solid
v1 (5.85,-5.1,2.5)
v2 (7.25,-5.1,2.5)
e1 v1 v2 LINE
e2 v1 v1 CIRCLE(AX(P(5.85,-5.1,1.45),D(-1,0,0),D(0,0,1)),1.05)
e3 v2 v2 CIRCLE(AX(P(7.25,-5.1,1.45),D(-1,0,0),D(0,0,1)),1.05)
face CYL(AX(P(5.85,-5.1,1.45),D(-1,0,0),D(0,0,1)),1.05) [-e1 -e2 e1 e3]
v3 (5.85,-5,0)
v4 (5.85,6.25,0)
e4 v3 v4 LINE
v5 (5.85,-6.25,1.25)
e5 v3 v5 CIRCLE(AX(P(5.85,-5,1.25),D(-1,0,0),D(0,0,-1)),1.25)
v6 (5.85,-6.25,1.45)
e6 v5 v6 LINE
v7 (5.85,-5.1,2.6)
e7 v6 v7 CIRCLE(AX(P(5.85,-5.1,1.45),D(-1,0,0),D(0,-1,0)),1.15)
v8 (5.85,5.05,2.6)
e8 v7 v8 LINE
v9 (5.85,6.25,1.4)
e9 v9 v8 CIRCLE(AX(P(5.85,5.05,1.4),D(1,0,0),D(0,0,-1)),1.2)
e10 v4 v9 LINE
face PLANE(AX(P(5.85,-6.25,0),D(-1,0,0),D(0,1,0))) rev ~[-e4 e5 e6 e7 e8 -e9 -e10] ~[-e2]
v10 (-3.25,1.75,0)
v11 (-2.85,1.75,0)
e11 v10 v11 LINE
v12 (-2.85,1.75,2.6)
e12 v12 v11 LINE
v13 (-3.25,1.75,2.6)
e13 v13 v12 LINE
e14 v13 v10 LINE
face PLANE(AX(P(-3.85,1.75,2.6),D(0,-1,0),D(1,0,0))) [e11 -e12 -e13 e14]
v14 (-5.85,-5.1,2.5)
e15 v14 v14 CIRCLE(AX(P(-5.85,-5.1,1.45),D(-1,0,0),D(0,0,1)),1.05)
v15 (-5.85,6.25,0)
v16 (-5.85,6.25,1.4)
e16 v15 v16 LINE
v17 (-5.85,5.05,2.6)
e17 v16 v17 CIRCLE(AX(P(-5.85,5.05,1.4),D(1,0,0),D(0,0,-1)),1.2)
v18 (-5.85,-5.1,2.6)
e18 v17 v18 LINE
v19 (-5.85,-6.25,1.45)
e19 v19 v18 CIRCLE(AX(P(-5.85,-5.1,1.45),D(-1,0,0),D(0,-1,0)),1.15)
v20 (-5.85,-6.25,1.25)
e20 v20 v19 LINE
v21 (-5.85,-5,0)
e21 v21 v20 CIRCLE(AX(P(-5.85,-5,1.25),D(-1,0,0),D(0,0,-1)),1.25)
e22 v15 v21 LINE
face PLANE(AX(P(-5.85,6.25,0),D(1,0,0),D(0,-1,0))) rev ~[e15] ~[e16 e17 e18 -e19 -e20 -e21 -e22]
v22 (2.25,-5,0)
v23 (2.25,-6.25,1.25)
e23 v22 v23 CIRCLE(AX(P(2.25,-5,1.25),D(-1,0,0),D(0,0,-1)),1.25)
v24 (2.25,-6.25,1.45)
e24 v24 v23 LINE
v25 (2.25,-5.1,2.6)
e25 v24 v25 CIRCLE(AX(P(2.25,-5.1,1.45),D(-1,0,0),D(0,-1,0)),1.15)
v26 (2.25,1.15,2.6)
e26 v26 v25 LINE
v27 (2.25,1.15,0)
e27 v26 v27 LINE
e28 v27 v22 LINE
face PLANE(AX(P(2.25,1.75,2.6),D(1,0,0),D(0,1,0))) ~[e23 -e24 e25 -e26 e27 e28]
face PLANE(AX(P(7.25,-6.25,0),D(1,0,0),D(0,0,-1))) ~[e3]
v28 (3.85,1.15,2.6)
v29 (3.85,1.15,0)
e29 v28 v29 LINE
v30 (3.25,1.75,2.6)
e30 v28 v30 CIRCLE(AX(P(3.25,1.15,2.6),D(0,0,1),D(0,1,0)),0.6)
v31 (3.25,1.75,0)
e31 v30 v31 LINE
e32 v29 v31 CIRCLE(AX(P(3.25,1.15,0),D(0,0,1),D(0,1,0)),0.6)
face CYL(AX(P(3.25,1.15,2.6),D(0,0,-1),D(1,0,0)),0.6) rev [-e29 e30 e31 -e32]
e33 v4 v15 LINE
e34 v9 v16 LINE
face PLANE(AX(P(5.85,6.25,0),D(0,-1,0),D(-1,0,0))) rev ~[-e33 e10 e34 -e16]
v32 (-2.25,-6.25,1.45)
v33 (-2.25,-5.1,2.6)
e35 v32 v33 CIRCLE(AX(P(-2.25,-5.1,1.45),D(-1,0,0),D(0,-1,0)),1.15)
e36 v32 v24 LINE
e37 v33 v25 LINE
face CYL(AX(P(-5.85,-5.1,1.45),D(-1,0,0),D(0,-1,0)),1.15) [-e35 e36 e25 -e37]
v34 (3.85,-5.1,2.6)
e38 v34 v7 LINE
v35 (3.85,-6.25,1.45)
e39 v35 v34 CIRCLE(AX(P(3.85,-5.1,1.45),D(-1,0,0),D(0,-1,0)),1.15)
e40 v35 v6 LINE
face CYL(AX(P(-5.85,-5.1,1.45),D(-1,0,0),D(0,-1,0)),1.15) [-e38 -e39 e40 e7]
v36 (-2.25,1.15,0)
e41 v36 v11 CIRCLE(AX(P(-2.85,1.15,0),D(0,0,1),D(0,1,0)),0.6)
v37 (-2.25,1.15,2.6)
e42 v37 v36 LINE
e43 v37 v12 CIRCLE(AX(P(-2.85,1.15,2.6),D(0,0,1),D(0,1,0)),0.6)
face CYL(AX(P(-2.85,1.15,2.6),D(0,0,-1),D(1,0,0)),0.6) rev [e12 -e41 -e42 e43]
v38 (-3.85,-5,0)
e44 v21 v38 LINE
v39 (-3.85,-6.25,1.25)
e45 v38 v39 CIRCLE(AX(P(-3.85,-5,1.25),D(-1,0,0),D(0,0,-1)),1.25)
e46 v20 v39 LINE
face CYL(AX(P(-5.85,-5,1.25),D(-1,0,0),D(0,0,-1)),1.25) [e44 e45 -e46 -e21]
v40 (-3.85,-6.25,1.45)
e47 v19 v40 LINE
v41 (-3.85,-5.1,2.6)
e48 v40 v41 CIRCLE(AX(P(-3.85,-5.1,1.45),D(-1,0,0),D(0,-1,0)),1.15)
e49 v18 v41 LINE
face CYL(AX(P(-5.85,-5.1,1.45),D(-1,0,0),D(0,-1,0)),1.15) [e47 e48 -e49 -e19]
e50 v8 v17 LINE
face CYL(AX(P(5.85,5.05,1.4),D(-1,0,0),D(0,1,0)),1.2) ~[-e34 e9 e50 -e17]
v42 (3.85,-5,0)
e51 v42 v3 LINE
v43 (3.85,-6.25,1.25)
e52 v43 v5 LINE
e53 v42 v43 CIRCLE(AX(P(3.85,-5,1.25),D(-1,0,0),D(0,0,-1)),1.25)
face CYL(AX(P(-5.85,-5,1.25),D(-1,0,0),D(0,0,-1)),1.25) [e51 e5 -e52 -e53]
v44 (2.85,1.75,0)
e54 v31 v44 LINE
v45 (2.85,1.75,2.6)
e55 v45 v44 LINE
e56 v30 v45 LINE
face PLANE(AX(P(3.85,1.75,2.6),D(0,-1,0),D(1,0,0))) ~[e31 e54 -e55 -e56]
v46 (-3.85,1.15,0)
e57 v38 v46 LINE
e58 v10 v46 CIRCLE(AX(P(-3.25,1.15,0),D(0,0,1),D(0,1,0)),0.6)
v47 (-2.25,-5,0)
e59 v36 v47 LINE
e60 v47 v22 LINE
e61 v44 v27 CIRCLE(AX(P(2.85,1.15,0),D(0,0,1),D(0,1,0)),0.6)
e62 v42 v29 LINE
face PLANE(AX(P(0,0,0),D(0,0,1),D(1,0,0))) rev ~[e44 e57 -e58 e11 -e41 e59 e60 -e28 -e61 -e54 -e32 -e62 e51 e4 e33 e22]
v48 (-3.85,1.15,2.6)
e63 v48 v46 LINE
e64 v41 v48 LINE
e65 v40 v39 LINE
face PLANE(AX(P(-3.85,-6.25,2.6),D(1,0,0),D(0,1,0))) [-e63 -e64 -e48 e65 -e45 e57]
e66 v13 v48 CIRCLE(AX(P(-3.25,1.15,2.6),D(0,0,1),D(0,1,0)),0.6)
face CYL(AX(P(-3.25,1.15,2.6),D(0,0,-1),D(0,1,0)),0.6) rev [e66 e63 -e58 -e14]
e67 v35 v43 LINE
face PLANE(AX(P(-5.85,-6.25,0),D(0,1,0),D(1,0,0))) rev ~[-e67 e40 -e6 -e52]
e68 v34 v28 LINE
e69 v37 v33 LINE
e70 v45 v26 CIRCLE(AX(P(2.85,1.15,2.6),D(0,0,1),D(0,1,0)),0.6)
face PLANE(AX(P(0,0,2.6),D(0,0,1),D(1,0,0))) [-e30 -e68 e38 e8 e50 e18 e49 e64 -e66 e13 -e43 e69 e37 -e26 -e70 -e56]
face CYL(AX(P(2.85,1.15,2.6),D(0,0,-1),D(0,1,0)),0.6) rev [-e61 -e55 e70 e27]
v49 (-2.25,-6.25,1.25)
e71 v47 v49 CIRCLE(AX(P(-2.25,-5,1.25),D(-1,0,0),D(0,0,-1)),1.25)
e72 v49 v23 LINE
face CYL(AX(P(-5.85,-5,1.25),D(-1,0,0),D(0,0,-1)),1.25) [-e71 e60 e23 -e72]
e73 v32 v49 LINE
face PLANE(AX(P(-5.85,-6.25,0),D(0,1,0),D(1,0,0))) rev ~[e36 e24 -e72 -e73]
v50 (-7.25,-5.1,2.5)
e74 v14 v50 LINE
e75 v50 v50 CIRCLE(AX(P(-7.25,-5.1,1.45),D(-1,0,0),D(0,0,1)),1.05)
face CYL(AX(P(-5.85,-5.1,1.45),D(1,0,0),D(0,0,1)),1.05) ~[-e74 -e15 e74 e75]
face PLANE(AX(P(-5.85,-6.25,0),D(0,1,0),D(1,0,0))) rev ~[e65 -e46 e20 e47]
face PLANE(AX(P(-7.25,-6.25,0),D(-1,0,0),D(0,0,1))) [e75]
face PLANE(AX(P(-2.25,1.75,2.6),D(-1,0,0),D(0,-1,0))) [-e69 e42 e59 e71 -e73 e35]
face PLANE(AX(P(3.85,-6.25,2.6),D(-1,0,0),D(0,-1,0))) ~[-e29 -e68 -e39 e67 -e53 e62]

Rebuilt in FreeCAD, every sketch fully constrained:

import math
import FreeCAD as App
import Part
import Sketcher

V = App.Vector


def edges_at(feature, points):
    """Names of the edges that pass closest to the given points."""
    edges = feature.Shape.Edges
    near = lambda p: min(range(len(edges)), key=lambda i: edges[i].distToShape(Part.Vertex(*p))[0])
    return sorted({f"Edge{near(p) + 1}" for p in points})

doc = App.newDocument("Part")
body = doc.addObject("PartDesign::Body", "Body")

# Sketch on XY plane
sketch1 = doc.addObject("Sketcher::SketchObject", "Sketch")
body.addObject(sketch1)
sketch1.AttachmentSupport = (doc.XY_Plane, [""])
sketch1.MapMode = "FlatFace"
sketch1.addGeometry(Part.LineSegment(V(-6, 6, 0), V(-6, -6, 0)), False)
sketch1.addGeometry(Part.LineSegment(V(-6, -6, 0), V(6, -6, 0)), False)
sketch1.addGeometry(Part.LineSegment(V(6, -6, 0), V(6, 6, 0)), False)
sketch1.addGeometry(Part.LineSegment(V(6, 6, 0), V(-6, 6, 0)), False)
sketch1.addConstraint(Sketcher.Constraint("Coincident", 0, 2, 1, 1))
sketch1.addConstraint(Sketcher.Constraint("Coincident", 1, 2, 2, 1))
sketch1.addConstraint(Sketcher.Constraint("Coincident", 2, 2, 3, 1))
sketch1.addConstraint(Sketcher.Constraint("Coincident", 3, 2, 0, 1))
sketch1.addConstraint(Sketcher.Constraint("Vertical", 0))
sketch1.addConstraint(Sketcher.Constraint("Horizontal", 1))
sketch1.addConstraint(Sketcher.Constraint("Vertical", 2))
sketch1.addConstraint(Sketcher.Constraint("Horizontal", 3))
sketch1.addConstraint(Sketcher.Constraint("Symmetric", 0, 2, 2, 2, -1, 1))
sketch1.addConstraint(Sketcher.Constraint("DistanceX", 1, 1, 1, 2, 11.7))
sketch1.addConstraint(Sketcher.Constraint("DistanceY", 0, 2, 0, 1, 12.5))
pad1 = doc.addObject("PartDesign::Pad", "Pad")
body.addObject(pad1)
pad1.Profile = sketch1
pad1.Length = 2.6

# Sketch on YZ plane
sketch2 = doc.addObject("Sketcher::SketchObject", "Sketch001")
body.addObject(sketch2)
sketch2.AttachmentSupport = (doc.YZ_Plane, [""])
sketch2.MapMode = "FlatFace"
sketch2.AttachmentOffset = App.Placement(V(0, 0, -5.85), App.Rotation())
sketch2.addGeometry(Part.Circle(V(-5.1, 1.4, 0), V(0, 0, 1), 1.1), False)
sketch2.addConstraint(Sketcher.Constraint("Diameter", 0, 2.1))
sketch2.addConstraint(Sketcher.Constraint("DistanceX", 0, 3, -1, 1, 5.1))
sketch2.addConstraint(Sketcher.Constraint("DistanceY", -1, 1, 0, 3, 1.45))
pad2 = doc.addObject("PartDesign::Pad", "Pad001")
body.addObject(pad2)
pad2.Profile = sketch2
pad2.Length = 1.4
pad2.Reversed = True

# Sketch on XY plane
sketch3 = doc.addObject("Sketcher::SketchObject", "Sketch002")
body.addObject(sketch3)
sketch3.AttachmentSupport = (doc.XY_Plane, [""])
sketch3.MapMode = "FlatFace"
sketch3.AttachmentOffset = App.Placement(V(0, 0, 2.6), App.Rotation())
sketch3.addGeometry(Part.LineSegment(V(-3.9, -6.2, 0), V(-2.2, -6.2, 0)), False)
sketch3.addGeometry(Part.LineSegment(V(-2.2, -6.2, 0), V(-2.2, 1.8, 0)), False)
sketch3.addGeometry(Part.LineSegment(V(-2.2, 1.8, 0), V(-3.9, 1.8, 0)), False)
sketch3.addGeometry(Part.LineSegment(V(-3.9, 1.8, 0), V(-3.9, -6.2, 0)), False)
sketch3.addConstraint(Sketcher.Constraint("Coincident", 0, 2, 1, 1))
sketch3.addConstraint(Sketcher.Constraint("Coincident", 1, 2, 2, 1))
sketch3.addConstraint(Sketcher.Constraint("Coincident", 2, 2, 3, 1))
sketch3.addConstraint(Sketcher.Constraint("Coincident", 3, 2, 0, 1))
sketch3.addConstraint(Sketcher.Constraint("Horizontal", 0))
sketch3.addConstraint(Sketcher.Constraint("Vertical", 1))
sketch3.addConstraint(Sketcher.Constraint("Horizontal", 2))
sketch3.addConstraint(Sketcher.Constraint("Vertical", 3))
sketch3.addConstraint(Sketcher.Constraint("DistanceY", 1, 1, 1, 2, 8.0))
sketch3.addConstraint(Sketcher.Constraint("DistanceX", 0, 1, 0, 2, 1.6))
sketch3.addConstraint(Sketcher.Constraint("DistanceX", 0, 2, -1, 1, 2.25))
sketch3.addConstraint(Sketcher.Constraint("DistanceY", 0, 2, -1, 1, 6.25))
pocket1 = doc.addObject("PartDesign::Pocket", "Pocket")
body.addObject(pocket1)
pocket1.Profile = sketch3
pocket1.Type = "ThroughAll"
doc.recompute()

mirrored = doc.addObject("PartDesign::Mirrored", "Mirrored")
body.addObject(mirrored)
mirrored.Originals = [pad2, pocket1]
mirrored.MirrorPlane = (doc.YZ_Plane, [""])
body.Tip = mirrored

# Sketch on YZ plane
sketch4 = doc.addObject("Sketcher::SketchObject", "Sketch003")
body.addObject(sketch4)
sketch4.AttachmentSupport = (doc.YZ_Plane, [""])
sketch4.MapMode = "FlatFace"
sketch4.AttachmentOffset = App.Placement(V(0, 0, -5.85), App.Rotation())
sketch4.addGeometry(Part.ArcOfCircle(Part.Circle(V(-5.1, 1.45, 0), V(0, 0, 1), 1.15), math.radians(90), math.radians(180)), False)
sketch4.addGeometry(Part.LineSegment(V(-6.25, 1.45, 0), V(-6.25, 1.25, 0)), False)
sketch4.addGeometry(Part.ArcOfCircle(Part.Circle(V(-5, 1.25, 0), V(0, 0, 1), 1.25), math.radians(180), math.radians(270)), False)
sketch4.addGeometry(Part.LineSegment(V(-5, 0, 0), V(-5, -2, 0)), False)
sketch4.addGeometry(Part.LineSegment(V(-5, -2, 0), V(-8, -2, 0)), False)
sketch4.addGeometry(Part.LineSegment(V(-8, -2, 0), V(-8, 3, 0)), False)
sketch4.addGeometry(Part.LineSegment(V(-8, 3, 0), V(-5, 3, 0)), False)
sketch4.addGeometry(Part.LineSegment(V(-5, 3, 0), V(-5.1, 2.6, 0)), False)
sketch4.addConstraint(Sketcher.Constraint("Tangent", 0, 2, 1, 1))
sketch4.addConstraint(Sketcher.Constraint("Tangent", 1, 2, 2, 1))
sketch4.addConstraint(Sketcher.Constraint("Coincident", 2, 2, 3, 1))
sketch4.addConstraint(Sketcher.Constraint("Coincident", 3, 2, 4, 1))
sketch4.addConstraint(Sketcher.Constraint("Coincident", 4, 2, 5, 1))
sketch4.addConstraint(Sketcher.Constraint("Coincident", 5, 2, 6, 1))
sketch4.addConstraint(Sketcher.Constraint("Coincident", 6, 2, 7, 1))
sketch4.addConstraint(Sketcher.Constraint("Coincident", 7, 2, 0, 1))
sketch4.addConstraint(Sketcher.Constraint("Vertical", 1))
sketch4.addConstraint(Sketcher.Constraint("Vertical", 3))
sketch4.addConstraint(Sketcher.Constraint("Horizontal", 4))
sketch4.addConstraint(Sketcher.Constraint("Vertical", 5))
sketch4.addConstraint(Sketcher.Constraint("Horizontal", 6))
sketch4.addConstraint(Sketcher.Constraint("PointOnObject", 2, 2, -1))
sketch4.addConstraint(Sketcher.Constraint("Vertical", 3, 2, 6, 2))
sketch4.addConstraint(Sketcher.Constraint("Vertical", 0, 3, 7, 2))
sketch4.addConstraint(Sketcher.Constraint("DistanceX", 4, 2, 4, 1, 3.0))
sketch4.addConstraint(Sketcher.Constraint("DistanceY", 3, 2, 3, 1, 2.0))
sketch4.addConstraint(Sketcher.Constraint("DistanceY", 5, 1, 5, 2, 5.0))
sketch4.addConstraint(Sketcher.Constraint("DistanceY", 1, 2, 1, 1, 0.2))
sketch4.addConstraint(Sketcher.Constraint("DistanceX", 2, 3, -1, 1, 5.0))
sketch4.addConstraint(Sketcher.Constraint("DistanceX", 2, 2, -1, 1, 5.0))
sketch4.addConstraint(Sketcher.Constraint("Radius", 0, 1.15))
sketch4.addConstraint(Sketcher.Constraint("Radius", 2, 1.25))
pocket2 = doc.addObject("PartDesign::Pocket", "Pocket001")
body.addObject(pocket2)
pocket2.Profile = sketch4
pocket2.Type = "ThroughAll"
pocket2.Reversed = True
doc.recompute()

fillet = doc.addObject("PartDesign::Fillet", "Fillet")
body.addObject(fillet)
fillet.Base = (pocket2, edges_at(pocket2, [
    (-3.85, 1.75, 1.3),
    (-2.25, 1.75, 1.3),
    (3.85, 1.75, 1.3),
    (2.25, 1.75, 1.3),
]))
fillet.Radius = 0.6
doc.recompute()

fillet2 = doc.addObject("PartDesign::Fillet", "Fillet001")
body.addObject(fillet2)
fillet2.Base = (fillet, edges_at(fillet, [(0, 6.25, 2.6)]))
fillet2.Radius = 1.2

doc.recompute()
